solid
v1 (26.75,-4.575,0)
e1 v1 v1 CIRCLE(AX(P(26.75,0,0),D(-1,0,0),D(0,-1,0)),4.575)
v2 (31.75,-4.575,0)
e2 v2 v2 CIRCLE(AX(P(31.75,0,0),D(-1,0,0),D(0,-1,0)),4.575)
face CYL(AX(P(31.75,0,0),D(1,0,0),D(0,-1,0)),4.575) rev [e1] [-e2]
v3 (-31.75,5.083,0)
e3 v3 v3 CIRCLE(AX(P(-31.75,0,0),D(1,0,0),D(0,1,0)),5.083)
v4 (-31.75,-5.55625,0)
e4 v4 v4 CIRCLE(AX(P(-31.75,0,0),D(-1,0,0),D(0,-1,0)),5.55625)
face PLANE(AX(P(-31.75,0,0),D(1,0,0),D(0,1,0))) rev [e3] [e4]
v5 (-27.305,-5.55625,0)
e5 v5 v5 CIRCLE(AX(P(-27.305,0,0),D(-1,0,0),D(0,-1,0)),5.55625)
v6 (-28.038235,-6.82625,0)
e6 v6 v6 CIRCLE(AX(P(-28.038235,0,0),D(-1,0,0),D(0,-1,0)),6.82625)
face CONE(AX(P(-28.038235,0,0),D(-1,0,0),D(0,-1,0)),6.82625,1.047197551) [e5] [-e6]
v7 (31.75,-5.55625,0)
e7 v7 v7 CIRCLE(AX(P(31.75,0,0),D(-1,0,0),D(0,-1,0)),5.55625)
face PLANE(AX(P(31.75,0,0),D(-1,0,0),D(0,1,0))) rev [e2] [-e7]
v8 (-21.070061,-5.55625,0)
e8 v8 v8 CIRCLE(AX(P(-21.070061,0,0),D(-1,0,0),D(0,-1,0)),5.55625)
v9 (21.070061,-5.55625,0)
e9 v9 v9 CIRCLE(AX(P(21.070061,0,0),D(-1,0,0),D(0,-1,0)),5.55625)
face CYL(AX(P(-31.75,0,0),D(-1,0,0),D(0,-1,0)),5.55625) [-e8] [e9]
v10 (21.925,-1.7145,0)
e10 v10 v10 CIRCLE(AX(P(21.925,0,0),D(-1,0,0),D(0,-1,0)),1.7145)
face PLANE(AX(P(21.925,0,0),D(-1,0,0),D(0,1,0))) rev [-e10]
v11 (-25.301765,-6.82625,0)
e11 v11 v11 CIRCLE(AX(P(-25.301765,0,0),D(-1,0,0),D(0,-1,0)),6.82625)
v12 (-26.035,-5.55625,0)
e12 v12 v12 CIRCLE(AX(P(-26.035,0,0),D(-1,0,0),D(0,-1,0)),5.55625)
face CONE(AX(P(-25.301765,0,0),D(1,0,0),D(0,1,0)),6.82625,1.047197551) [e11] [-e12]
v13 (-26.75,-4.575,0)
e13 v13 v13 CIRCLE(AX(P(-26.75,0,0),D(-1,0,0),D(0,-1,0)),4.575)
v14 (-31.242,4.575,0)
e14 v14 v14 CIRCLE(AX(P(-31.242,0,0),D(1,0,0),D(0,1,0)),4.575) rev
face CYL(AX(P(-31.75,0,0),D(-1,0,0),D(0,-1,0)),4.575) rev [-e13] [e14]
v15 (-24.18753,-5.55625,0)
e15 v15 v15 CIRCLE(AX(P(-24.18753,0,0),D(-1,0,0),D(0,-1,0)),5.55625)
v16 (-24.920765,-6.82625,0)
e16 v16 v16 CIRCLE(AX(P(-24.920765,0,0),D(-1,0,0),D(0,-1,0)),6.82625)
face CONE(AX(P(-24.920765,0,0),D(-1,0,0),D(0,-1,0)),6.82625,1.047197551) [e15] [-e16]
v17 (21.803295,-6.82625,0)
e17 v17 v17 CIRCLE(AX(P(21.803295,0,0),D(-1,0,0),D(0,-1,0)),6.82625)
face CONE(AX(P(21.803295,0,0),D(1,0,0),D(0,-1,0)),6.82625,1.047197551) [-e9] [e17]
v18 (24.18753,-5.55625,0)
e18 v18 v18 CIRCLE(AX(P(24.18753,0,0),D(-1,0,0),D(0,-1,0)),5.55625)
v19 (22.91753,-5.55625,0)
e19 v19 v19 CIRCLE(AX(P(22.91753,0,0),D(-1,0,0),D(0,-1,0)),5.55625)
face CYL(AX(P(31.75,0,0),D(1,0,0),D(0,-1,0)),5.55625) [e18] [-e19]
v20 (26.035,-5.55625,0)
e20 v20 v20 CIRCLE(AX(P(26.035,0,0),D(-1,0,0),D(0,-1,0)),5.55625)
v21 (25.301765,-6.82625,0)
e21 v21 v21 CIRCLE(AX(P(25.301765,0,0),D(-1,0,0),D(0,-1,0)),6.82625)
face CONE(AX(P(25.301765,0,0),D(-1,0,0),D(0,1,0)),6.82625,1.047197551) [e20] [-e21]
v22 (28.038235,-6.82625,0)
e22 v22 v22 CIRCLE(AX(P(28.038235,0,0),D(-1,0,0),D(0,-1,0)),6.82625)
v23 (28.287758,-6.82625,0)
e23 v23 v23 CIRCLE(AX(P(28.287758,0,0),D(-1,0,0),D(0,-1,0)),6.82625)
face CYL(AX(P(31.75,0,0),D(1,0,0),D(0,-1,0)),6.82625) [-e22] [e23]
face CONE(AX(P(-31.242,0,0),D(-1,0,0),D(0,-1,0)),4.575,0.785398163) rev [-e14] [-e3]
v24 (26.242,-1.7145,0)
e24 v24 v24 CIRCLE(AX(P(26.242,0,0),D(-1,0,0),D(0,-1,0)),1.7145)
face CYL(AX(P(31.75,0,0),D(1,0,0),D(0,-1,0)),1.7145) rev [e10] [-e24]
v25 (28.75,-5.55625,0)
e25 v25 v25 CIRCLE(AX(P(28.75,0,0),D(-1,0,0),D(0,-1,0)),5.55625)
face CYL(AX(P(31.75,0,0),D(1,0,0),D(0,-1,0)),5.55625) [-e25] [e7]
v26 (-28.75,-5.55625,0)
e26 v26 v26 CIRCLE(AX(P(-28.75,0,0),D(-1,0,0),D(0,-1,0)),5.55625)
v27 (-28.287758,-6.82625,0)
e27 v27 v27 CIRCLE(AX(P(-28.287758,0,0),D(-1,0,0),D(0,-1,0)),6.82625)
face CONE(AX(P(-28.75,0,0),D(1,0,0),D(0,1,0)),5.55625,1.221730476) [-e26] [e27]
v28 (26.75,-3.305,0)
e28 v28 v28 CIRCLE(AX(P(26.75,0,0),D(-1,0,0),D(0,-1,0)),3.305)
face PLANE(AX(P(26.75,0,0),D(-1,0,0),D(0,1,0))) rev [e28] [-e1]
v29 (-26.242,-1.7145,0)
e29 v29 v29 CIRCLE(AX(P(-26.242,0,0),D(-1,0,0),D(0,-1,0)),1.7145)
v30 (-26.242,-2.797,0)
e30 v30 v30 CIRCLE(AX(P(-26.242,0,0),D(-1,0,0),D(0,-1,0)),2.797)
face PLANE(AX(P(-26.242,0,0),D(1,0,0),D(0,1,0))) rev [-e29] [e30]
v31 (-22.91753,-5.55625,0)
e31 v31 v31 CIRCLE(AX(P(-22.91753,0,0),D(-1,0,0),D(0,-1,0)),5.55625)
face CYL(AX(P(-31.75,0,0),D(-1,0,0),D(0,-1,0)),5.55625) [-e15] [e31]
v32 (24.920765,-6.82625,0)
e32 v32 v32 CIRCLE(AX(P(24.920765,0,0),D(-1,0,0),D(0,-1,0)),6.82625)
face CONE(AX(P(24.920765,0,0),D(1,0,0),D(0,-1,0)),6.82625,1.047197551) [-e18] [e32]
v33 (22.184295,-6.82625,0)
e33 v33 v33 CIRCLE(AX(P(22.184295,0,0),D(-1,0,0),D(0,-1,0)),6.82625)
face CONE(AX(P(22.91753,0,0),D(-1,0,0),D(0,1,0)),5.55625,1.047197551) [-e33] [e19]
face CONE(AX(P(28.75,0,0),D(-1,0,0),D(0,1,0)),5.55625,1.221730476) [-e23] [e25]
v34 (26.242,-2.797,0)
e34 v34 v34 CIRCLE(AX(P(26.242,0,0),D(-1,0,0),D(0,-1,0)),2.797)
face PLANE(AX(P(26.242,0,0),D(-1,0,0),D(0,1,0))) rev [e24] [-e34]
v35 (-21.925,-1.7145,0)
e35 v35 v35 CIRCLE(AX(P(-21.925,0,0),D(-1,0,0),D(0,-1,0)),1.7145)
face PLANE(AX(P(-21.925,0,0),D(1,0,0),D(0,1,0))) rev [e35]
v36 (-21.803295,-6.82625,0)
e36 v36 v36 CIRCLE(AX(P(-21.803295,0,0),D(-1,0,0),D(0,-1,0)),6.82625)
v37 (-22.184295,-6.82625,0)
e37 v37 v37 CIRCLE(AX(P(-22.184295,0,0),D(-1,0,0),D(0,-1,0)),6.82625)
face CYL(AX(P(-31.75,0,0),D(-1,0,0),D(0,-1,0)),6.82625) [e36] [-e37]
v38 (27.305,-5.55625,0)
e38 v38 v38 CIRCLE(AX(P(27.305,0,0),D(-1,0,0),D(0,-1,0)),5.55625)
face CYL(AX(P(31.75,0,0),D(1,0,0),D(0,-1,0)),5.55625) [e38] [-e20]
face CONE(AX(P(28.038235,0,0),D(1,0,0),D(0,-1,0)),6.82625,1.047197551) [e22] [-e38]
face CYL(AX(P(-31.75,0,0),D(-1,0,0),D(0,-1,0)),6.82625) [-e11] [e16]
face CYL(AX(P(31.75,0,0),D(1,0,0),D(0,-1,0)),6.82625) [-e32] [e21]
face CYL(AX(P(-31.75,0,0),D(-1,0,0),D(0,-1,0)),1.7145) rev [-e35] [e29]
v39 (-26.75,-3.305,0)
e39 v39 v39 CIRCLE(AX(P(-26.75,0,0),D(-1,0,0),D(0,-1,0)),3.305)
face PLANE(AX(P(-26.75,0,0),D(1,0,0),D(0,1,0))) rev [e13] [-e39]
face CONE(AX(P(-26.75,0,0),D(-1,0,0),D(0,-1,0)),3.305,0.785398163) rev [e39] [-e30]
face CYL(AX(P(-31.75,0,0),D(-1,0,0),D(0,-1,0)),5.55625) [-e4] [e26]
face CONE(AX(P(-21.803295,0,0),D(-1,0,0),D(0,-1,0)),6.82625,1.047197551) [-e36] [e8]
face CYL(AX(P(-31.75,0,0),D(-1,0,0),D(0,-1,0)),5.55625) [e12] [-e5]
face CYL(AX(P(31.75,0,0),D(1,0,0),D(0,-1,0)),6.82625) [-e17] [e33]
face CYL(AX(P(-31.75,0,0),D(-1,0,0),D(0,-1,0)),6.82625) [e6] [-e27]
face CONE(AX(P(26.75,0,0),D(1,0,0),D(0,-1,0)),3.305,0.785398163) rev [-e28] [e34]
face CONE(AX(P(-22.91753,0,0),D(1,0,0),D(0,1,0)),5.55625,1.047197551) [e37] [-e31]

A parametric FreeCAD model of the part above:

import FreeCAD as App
import Part
import Sketcher

V = App.Vector
Q = App.Units.Quantity


def edges_at(feature, points):
    """Names of the edges that pass closest to the given points."""
    edges = feature.Shape.Edges
    near = lambda p: min(range(len(edges)), key=lambda i: edges[i].distToShape(Part.Vertex(*p))[0])
    return sorted({f"Edge{near(p) + 1}" for p in points})


def add_polygon(sketch, points):
    """Adds a closed chain of lines whose ends are joined by coincident constraints."""
    first, n = sketch.GeometryCount, len(points)
    for a, b in zip(points, points[1:] + points[:1]):
        sketch.addGeometry(Part.LineSegment(App.Vector(*a, 0), App.Vector(*b, 0)), False)
    for i in range(n):
        sketch.addConstraint(Sketcher.Constraint("Coincident", first + i, 2, first + (i + 1) % n, 1))

doc = App.newDocument("Part")
body = doc.addObject("PartDesign::Body", "Body")

# Sketch on XY plane
sketch1 = doc.addObject("Sketcher::SketchObject", "Sketch")
body.addObject(sketch1)
sketch1.AttachmentSupport = (doc.XY_Plane, [""])
sketch1.MapMode = "FlatFace"
add_polygon(sketch1, [(-28.75, 5.56), (-31.75, 5.56), (-31.75, 4.58), (-26.75, 4.58), (-26.75, 3.31), (-26.24, 2.8), (-26.24, 1.71), (-21.93, 1.71), (-21.93, 0), (0, 0), (0, 5.56), (-21.07, 5.56), (-21.8, 6.83), (-22.18, 6.83), (-22.92, 5.56), (-24.19, 5.56), (-24.92, 6.83), (-25.3, 6.83), (-26.04, 5.56), (-27.3, 5.56), (-28.04, 6.83), (-28.29, 6.83)])  # lines 0-21
sketch1.addConstraint([
    Sketcher.Constraint("Horizontal", 0),
    Sketcher.Constraint("Vertical", 1),
    Sketcher.Constraint("Horizontal", 2),
    Sketcher.Constraint("Vertical", 3),
    Sketcher.Constraint("Vertical", 5),
    Sketcher.Constraint("Horizontal", 6),
    Sketcher.Constraint("Vertical", 7),
    Sketcher.Constraint("Horizontal", 8),
    Sketcher.Constraint("Vertical", 9),
    Sketcher.Constraint("Horizontal", 10),
    Sketcher.Constraint("Horizontal", 12),
    Sketcher.Constraint("Horizontal", 14),
    Sketcher.Constraint("Horizontal", 16),
    Sketcher.Constraint("Horizontal", 18),
    Sketcher.Constraint("Horizontal", 20),
    Sketcher.Constraint("Coincident", 8, 2, -1, 1),
    Sketcher.Constraint("Parallel", 11, 15),
    Sketcher.Constraint("Parallel", 13, 17),
    Sketcher.Constraint("Parallel", 15, 19),
    Sketcher.Constraint("Horizontal", 0, 2, 9, 2),
    Sketcher.Constraint("Horizontal", 10, 2, 13, 2),
    Sketcher.Constraint("Horizontal", 12, 2, 15, 2),
    Sketcher.Constraint("Horizontal", 14, 2, 17, 2),
    Sketcher.Constraint("Horizontal", 16, 2, 19, 2),
    Sketcher.Constraint("Equal", 12, 16),
    Sketcher.Constraint("Equal", 14, 18),
    Sketcher.Constraint("Equal", 18, 3),
    Sketcher.Constraint("Equal", 11, 13),
    Sketcher.Constraint("Angle", 4, Q("-45 deg")),
    Sketcher.Constraint("Angle", 11, Q("120 deg")),
    Sketcher.Constraint("Angle", 21, Q("-110 deg")),
    Sketcher.Constraint("DistanceX", 14, 2, 14, 1, Q("0.05 in")),
    Sketcher.Constraint("DistanceX", 12, 2, 12, 1, Q("0.015 in")),
    Sketcher.Constraint("DistanceY", 9, 1, 9, 2, Q("0.21875 in")),
    Sketcher.Constraint("DistanceX", 0, 2, -1, 1, Q("1.25 in")),
    Sketcher.Constraint("DistanceX", 3, 2, 4, 2, Q("0.02 in")),
    Sketcher.Constraint("DistanceY", 10, 2, 11, 2, Q("0.05 in")),
    Sketcher.Constraint("DistanceY", 7, 2, 7, 1, Q("0.0675 in")),
    Sketcher.Constraint("DistanceX", 17, 2, -1, 1, Q("1.025 in")),
    Sketcher.Constraint("DistanceX", 0, 2, 0, 1, 3.0),
    Sketcher.Constraint("DistanceX", 2, 1, 2, 2, 5.0),
    Sketcher.Constraint("DistanceX", 6, 1, 6, 2, 4.317),
    Sketcher.Constraint("DistanceY", 5, 2, 5, 1, 1.0825),
])
revolution = doc.addObject("PartDesign::Revolution", "Revolution")
body.addObject(revolution)
revolution.Profile = sketch1
revolution.ReferenceAxis = (sketch1, ["H_Axis"])
revolution.Angle = 360
body2 = doc.addObject("PartDesign::Body", "Body001")
doc.recompute()

body2.BaseFeature = body
doc.recompute()

mirroring = doc.addObject("Part::Mirroring", "Mirroring")
mirroring.Source = body
mirroring.Base = V(0, 0, 0)
mirroring.Normal = V(1, 0, 0)
body3 = doc.addObject("PartDesign::Body", "Body002")
body3.BaseFeature = mirroring
boolean = doc.addObject("PartDesign::Boolean", "Boolean")
body2.addObject(boolean)
boolean.Type = "Fuse"
boolean.addObjects([body3])
doc.recompute()

chamfer = doc.addObject("PartDesign::Chamfer", "Chamfer")
body2.addObject(chamfer)
chamfer.Base = (boolean, edges_at(boolean, [(-31.75, 4.575, 0)]))
chamfer.Size = Q("0.02 in")
mirroring.Visibility = False

doc.recompute()
